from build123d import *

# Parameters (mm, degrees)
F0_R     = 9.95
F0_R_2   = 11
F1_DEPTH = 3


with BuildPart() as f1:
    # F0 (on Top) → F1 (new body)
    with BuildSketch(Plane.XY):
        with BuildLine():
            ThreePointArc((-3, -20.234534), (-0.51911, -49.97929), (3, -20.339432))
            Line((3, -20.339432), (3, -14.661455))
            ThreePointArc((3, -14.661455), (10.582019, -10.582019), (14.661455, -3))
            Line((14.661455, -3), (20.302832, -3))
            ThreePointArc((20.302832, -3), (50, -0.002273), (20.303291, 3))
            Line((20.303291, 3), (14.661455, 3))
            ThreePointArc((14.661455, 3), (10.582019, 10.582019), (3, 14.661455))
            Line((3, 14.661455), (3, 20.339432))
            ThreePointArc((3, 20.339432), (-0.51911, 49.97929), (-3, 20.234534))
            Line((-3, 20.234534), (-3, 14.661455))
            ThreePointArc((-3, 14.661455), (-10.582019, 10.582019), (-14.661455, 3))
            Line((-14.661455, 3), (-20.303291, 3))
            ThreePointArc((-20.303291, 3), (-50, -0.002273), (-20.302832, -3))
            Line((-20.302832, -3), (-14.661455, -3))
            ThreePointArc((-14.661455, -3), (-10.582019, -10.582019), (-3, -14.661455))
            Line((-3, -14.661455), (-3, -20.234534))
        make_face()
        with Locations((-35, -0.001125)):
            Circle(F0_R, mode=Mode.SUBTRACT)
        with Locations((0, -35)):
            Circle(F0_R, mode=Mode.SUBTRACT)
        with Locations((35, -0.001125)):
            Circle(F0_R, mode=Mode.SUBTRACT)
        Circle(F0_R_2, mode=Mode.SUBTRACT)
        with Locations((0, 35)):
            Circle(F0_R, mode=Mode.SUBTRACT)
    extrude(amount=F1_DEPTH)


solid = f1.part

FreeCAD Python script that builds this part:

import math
import FreeCAD as App
import Part
import Sketcher
from FreeCAD import Vector

doc = App.newDocument("Part")
body = doc.addObject("PartDesign::Body", "Body")

# Sketch on XY plane
sketch1 = body.newObject("Sketcher::SketchObject", "Sketch")
sketch1.AttachmentSupport = (doc.getObject("XY_Plane"), [""])
sketch1.MapMode = "FlatFace"
sketch1.addGeometry(Part.ArcOfCircle(Part.Circle(Vector(0, -35, 0), Vector(0, 0, 1), 15), math.radians(101), math.radians(437)), False)
sketch1.addGeometry(Part.LineSegment(Vector(3, -20, 0), Vector(3, -15, 0)), False)
sketch1.addGeometry(Part.ArcOfCircle(Part.Circle(Vector(0, 0, 0), Vector(0, 0, 1), 15), math.radians(-78), math.radians(-12)), False)
sketch1.addGeometry(Part.LineSegment(Vector(15, -3, 0), Vector(20, -3, 0)), False)
sketch1.addGeometry(Part.ArcOfCircle(Part.Circle(Vector(35, 0, 0), Vector(0, 0, 1), 15), math.radians(-168), math.radians(168)), False)
sketch1.addGeometry(Part.LineSegment(Vector(20, 3, 0), Vector(15, 3, 0)), False)
sketch1.addGeometry(Part.ArcOfCircle(Part.Circle(Vector(0, 0, 0), Vector(0, 0, 1), 15), math.radians(12), math.radians(78)), False)
sketch1.addGeometry(Part.LineSegment(Vector(3, 15, 0), Vector(3, 20, 0)), False)
sketch1.addGeometry(Part.ArcOfCircle(Part.Circle(Vector(0, 35, 0), Vector(0, 0, 1), 15), math.radians(-77), math.radians(259)), False)
sketch1.addGeometry(Part.LineSegment(Vector(-3, 20, 0), Vector(-3, 15, 0)), False)
sketch1.addGeometry(Part.ArcOfCircle(Part.Circle(Vector(0, 0, 0), Vector(0, 0, 1), 15), math.radians(102), math.radians(168)), False)
sketch1.addGeometry(Part.LineSegment(Vector(-15, 3, 0), Vector(-20, 3, 0)), False)
sketch1.addGeometry(Part.ArcOfCircle(Part.Circle(Vector(-35, 0, 0), Vector(0, 0, 1), 15), math.radians(12), math.radians(348)), False)
sketch1.addGeometry(Part.LineSegment(Vector(-20, -3, 0), Vector(-15, -3, 0)), False)
sketch1.addGeometry(Part.ArcOfCircle(Part.Circle(Vector(0, 0, 0), Vector(0, 0, 1), 15), math.radians(-168), math.radians(-102)), False)
sketch1.addGeometry(Part.LineSegment(Vector(-3, -15, 0), Vector(-3, -20, 0)), False)
sketch1.addGeometry(Part.Circle(Vector(0, -35, 0), Vector(0, 0, 1), 10), False)
sketch1.addGeometry(Part.Circle(Vector(-35, 0, 0), Vector(0, 0, 1), 10), False)
sketch1.addGeometry(Part.Circle(Vector(0, 0, 0), Vector(0, 0, 1), 11), False)
sketch1.addGeometry(Part.Circle(Vector(35, 0, 0), Vector(0, 0, 1), 10), False)
sketch1.addGeometry(Part.Circle(Vector(0, 35, 0), Vector(0, 0, 1), 10), False)
sketch1.addConstraint(Sketcher.Constraint("Coincident", 0, 2, 1, 1))
sketch1.addConstraint(Sketcher.Constraint("Coincident", 1, 2, 2, 1))
sketch1.addConstraint(Sketcher.Constraint("Coincident", 2, 2, 3, 1))
sketch1.addConstraint(Sketcher.Constraint("Coincident", 3, 2, 4, 1))
sketch1.addConstraint(Sketcher.Constraint("Coincident", 4, 2, 5, 1))
sketch1.addConstraint(Sketcher.Constraint("Coincident", 5, 2, 6, 1))
sketch1.addConstraint(Sketcher.Constraint("Coincident", 6, 2, 7, 1))
sketch1.addConstraint(Sketcher.Constraint("Coincident", 7, 2, 8, 1))
sketch1.addConstraint(Sketcher.Constraint("Coincident", 8, 2, 9, 1))
sketch1.addConstraint(Sketcher.Constraint("Coincident", 9, 2, 10, 1))
sketch1.addConstraint(Sketcher.Constraint("Coincident", 10, 2, 11, 1))
sketch1.addConstraint(Sketcher.Constraint("Coincident", 11, 2, 12, 1))
sketch1.addConstraint(Sketcher.Constraint("Coincident", 12, 2, 13, 1))
sketch1.addConstraint(Sketcher.Constraint("Coincident", 13, 2, 14, 1))
sketch1.addConstraint(Sketcher.Constraint("Coincident", 14, 2, 15, 1))
sketch1.addConstraint(Sketcher.Constraint("Coincident", 15, 2, 0, 1))
sketch1.addConstraint(Sketcher.Constraint("Vertical", 1))
sketch1.addConstraint(Sketcher.Constraint("Horizontal", 3))
sketch1.addConstraint(Sketcher.Constraint("Horizontal", 5))
sketch1.addConstraint(Sketcher.Constraint("Vertical", 7))
sketch1.addConstraint(Sketcher.Constraint("Vertical", 9))
sketch1.addConstraint(Sketcher.Constraint("Horizontal", 11))
sketch1.addConstraint(Sketcher.Constraint("Horizontal", 13))
sketch1.addConstraint(Sketcher.Constraint("Vertical", 15))
sketch1.addConstraint(Sketcher.Constraint("Coincident", 2, 3, -1, 1))
sketch1.addConstraint(Sketcher.Constraint("Coincident", 6, 3, -1, 1))
sketch1.addConstraint(Sketcher.Constraint("Coincident", 10, 3, -1, 1))
sketch1.addConstraint(Sketcher.Constraint("Coincident", 14, 3, -1, 1))
sketch1.addConstraint(Sketcher.Constraint("Coincident", 18, 3, -1, 1))
sketch1.addConstraint(Sketcher.Constraint("Coincident", 17, 3, 12, 3))
sketch1.addConstraint(Sketcher.Constraint("Coincident", 19, 3, 4, 3))
sketch1.addConstraint(Sketcher.Constraint("Equal", 0, 4))
sketch1.addConstraint(Sketcher.Constraint("Equal", 2, 6))
sketch1.addConstraint(Sketcher.Constraint("Equal", 4, 8))
sketch1.addConstraint(Sketcher.Constraint("Equal", 6, 10))
sketch1.addConstraint(Sketcher.Constraint("Equal", 8, 12))
sketch1.addConstraint(Sketcher.Constraint("Equal", 10, 14))
sketch1.addConstraint(Sketcher.Constraint("Equal", 16, 17))
sketch1.addConstraint(Sketcher.Constraint("Equal", 17, 19))
sketch1.addConstraint(Sketcher.Constraint("Equal", 19, 20))
sketch1.addConstraint(Sketcher.Constraint("Symmetric", 16, 3, 20, 3, -1, 1))
sketch1.addConstraint(Sketcher.Constraint("Symmetric", 4, 3, 12, 3, -2))
sketch1.addConstraint(Sketcher.Constraint("Symmetric", 0, 3, 8, 3, -1))
sketch1.addConstraint(Sketcher.Constraint("PointOnObject", 16, 3, -2))
sketch1.addConstraint(Sketcher.Constraint("Horizontal", 6, 2, 9, 2))
sketch1.addConstraint(Sketcher.Constraint("Horizontal", 5, 2, 10, 2))
sketch1.addConstraint(Sketcher.Constraint("Horizontal", 3, 2, 12, 2))
sketch1.addConstraint(Sketcher.Constraint("Horizontal", 1, 2, 14, 2))
sketch1.addConstraint(Sketcher.Constraint("Vertical", 2, 2, 5, 2))
sketch1.addConstraint(Sketcher.Constraint("Vertical", 1, 2, 6, 2))
sketch1.addConstraint(Sketcher.Constraint("Diameter", 18, 22.0))
sketch1.addConstraint(Sketcher.Constraint("Radius", 0, 15.0))
sketch1.addConstraint(Sketcher.Constraint("Diameter", 16, 19.9))
sketch1.addConstraint(Sketcher.Constraint("DistanceX", -1, 1, 4, 3, 35.0))
sketch1.addConstraint(Sketcher.Constraint("DistanceY", 16, 3, -1, 1, 35.0))
sketch1.addConstraint(Sketcher.Constraint("DistanceX", -1, 1, 0, 2, 3.0))
sketch1.addConstraint(Sketcher.Constraint("DistanceY", 2, 2, -1, 1, 3.0))
sketch1.addConstraint(Sketcher.Constraint("Radius", 2, 14.965237))
sketch1.addConstraint(Sketcher.Constraint("DistanceY", 9, 2, 9, 1, 5.573079))
sketch1.addConstraint(Sketcher.Constraint("DistanceY", 8, 2, 7, 2, 0.104898))
sketch1.addConstraint(Sketcher.Constraint("DistanceX", 3, 1, 3, 2, 5.641377))
pad1 = body.newObject("PartDesign::Pad", "Pad")
pad1.Profile = sketch1
pad1.Length = 3

doc.recompute()
